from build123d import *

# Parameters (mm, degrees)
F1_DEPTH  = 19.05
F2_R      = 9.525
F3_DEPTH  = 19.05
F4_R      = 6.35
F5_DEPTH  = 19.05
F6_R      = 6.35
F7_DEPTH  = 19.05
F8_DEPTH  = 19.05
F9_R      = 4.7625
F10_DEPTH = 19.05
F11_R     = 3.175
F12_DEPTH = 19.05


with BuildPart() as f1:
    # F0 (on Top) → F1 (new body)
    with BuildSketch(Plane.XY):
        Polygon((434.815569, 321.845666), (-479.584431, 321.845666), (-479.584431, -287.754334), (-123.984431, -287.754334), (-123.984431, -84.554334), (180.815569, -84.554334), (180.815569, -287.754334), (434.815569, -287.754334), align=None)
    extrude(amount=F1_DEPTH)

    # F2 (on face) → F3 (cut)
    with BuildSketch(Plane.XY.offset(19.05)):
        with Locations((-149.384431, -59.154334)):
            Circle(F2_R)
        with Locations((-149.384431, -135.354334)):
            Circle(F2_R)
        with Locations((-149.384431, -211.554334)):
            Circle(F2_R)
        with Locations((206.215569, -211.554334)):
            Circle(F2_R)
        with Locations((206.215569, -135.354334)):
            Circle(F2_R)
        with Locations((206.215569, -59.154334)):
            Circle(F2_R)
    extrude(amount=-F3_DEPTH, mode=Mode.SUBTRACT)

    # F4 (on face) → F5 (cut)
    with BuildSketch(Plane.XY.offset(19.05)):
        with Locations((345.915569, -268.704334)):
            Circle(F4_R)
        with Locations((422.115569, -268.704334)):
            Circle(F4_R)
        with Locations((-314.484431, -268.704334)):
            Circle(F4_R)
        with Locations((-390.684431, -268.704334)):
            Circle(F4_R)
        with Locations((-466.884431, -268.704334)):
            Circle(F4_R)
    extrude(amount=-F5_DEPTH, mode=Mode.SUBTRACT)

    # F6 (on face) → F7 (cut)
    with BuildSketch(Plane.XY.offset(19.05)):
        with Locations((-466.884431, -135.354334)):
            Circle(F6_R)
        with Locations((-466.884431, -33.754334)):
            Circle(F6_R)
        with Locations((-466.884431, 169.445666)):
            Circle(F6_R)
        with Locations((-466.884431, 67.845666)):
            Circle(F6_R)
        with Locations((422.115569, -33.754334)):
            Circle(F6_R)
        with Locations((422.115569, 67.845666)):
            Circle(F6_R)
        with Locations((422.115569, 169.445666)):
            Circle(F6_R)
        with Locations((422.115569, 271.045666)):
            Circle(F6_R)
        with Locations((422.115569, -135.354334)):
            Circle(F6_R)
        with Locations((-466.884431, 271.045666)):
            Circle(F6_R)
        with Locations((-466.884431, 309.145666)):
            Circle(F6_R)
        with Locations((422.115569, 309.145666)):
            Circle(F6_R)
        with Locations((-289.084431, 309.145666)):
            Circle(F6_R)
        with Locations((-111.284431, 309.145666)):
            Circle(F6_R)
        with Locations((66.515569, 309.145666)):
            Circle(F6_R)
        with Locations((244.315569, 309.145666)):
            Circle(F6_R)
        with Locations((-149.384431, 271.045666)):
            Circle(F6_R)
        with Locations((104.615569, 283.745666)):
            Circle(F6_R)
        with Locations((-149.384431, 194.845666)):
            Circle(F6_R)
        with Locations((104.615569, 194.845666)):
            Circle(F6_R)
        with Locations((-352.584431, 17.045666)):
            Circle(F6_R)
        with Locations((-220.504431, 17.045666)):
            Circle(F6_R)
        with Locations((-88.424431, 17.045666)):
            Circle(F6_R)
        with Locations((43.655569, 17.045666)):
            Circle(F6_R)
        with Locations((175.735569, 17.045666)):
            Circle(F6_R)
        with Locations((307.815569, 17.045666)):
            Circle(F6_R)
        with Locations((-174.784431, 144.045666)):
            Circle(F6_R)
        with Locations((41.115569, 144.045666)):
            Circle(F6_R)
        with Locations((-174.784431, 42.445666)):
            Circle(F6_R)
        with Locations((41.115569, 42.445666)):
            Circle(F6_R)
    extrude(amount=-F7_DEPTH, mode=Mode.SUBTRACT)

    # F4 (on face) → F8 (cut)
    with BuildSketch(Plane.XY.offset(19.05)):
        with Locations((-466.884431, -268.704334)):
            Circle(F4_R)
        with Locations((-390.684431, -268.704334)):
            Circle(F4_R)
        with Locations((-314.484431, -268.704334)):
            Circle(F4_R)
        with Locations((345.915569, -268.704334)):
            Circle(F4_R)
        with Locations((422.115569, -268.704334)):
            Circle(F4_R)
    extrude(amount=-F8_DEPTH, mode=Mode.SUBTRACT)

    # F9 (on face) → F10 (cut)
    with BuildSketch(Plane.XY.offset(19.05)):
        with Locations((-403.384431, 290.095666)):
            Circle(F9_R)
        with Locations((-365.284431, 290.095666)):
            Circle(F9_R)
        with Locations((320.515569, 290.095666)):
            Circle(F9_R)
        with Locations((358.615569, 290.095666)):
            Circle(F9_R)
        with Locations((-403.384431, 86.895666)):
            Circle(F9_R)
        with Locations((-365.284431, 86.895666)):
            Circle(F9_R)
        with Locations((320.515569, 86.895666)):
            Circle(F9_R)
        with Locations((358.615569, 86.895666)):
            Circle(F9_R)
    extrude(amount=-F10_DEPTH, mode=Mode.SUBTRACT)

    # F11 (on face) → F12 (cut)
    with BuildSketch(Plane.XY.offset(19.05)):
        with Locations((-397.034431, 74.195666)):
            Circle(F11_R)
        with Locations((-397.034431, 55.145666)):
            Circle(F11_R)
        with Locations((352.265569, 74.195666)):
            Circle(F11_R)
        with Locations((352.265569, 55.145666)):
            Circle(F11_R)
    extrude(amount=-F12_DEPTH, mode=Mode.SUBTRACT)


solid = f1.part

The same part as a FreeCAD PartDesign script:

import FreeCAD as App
import Part
import Sketcher

V = App.Vector
Q = App.Units.Quantity

doc = App.newDocument("Part")
params = doc.addObject("Spreadsheet::Sheet", "Params")
for row, (alias, value) in enumerate([
    ("sketch1_width", "36 in"),
    ("sketch1_width2", "14 in"),
    ("sketch1_width3", "12 in"),
    ("sketch1_height", "24 in"),
    ("sketch1_height2", "8 in"),
    ("pad1_length", "0.75 in"),
    ("sketch2_diameter", "0.75 in"),
    ("pocket1_length", "0.75 in"),
    ("sketch3_diameter", "0.5 in"),
    ("pocket2_length", "0.75 in"),
    ("sketch4_diameter", "0.5 in"),
    ("pocket3_length", "0.75 in"),
    ("sketch5_diameter", "0.5 in"),
    ("pocket4_length", "0.75 in"),
    ("sketch6_diameter", "0.375 in"),
    ("pocket5_length", "0.75 in"),
    ("sketch7_diameter", "0.25 in"),
    ("pocket6_length", "0.75 in"),
], start=1):
    params.set(f"A{row}", alias)
    params.set(f"B{row}", "=" + value)
    params.setAlias(f"B{row}", alias)

body = doc.addObject("PartDesign::Body", "Body")

sketch1 = body.newObject("Sketcher::SketchObject", "Sketch")
sketch1.AttachmentSupport = (doc.getObject("XY_Plane"), [""])
sketch1.MapMode = "FlatFace"
sketch1.addGeometry(Part.LineSegment(V(435, 322, 0), V(-480, 322, 0)), False)
sketch1.addGeometry(Part.LineSegment(V(-480, 322, 0), V(-480, -288, 0)), False)
sketch1.addGeometry(Part.LineSegment(V(-480, -288, 0), V(-124, -288, 0)), False)
sketch1.addGeometry(Part.LineSegment(V(-124, -288, 0), V(-124, -85, 0)), False)
sketch1.addGeometry(Part.LineSegment(V(-124, -85, 0), V(181, -85, 0)), False)
sketch1.addGeometry(Part.LineSegment(V(181, -85, 0), V(181, -288, 0)), False)
sketch1.addGeometry(Part.LineSegment(V(181, -288, 0), V(435, -288, 0)), False)
sketch1.addGeometry(Part.LineSegment(V(435, -288, 0), V(435, 322, 0)), False)
sketch1.addConstraint(Sketcher.Constraint("Coincident", 0, 2, 1, 1))
sketch1.addConstraint(Sketcher.Constraint("Coincident", 1, 2, 2, 1))
sketch1.addConstraint(Sketcher.Constraint("Coincident", 2, 2, 3, 1))
sketch1.addConstraint(Sketcher.Constraint("Coincident", 3, 2, 4, 1))
sketch1.addConstraint(Sketcher.Constraint("Coincident", 4, 2, 5, 1))
sketch1.addConstraint(Sketcher.Constraint("Coincident", 5, 2, 6, 1))
sketch1.addConstraint(Sketcher.Constraint("Coincident", 6, 2, 7, 1))
sketch1.addConstraint(Sketcher.Constraint("Coincident", 7, 2, 0, 1))
sketch1.addConstraint(Sketcher.Constraint("Horizontal", 0))
sketch1.addConstraint(Sketcher.Constraint("Vertical", 1))
sketch1.addConstraint(Sketcher.Constraint("Horizontal", 2))
sketch1.addConstraint(Sketcher.Constraint("Vertical", 3))
sketch1.addConstraint(Sketcher.Constraint("Horizontal", 4))
sketch1.addConstraint(Sketcher.Constraint("Vertical", 5))
sketch1.addConstraint(Sketcher.Constraint("Horizontal", 6))
sketch1.addConstraint(Sketcher.Constraint("Vertical", 7))
sketch1.addConstraint(Sketcher.Constraint("Horizontal", 2, 2, 5, 2))
sketch1.addConstraint(Sketcher.Constraint("DistanceX", 0, 2, 0, 1, Q("36 in")))
sketch1.addConstraint(Sketcher.Constraint("DistanceX", 2, 1, 2, 2, Q("14 in")))
sketch1.addConstraint(Sketcher.Constraint("DistanceX", 4, 1, 4, 2, Q("12 in")))
sketch1.addConstraint(Sketcher.Constraint("DistanceY", 1, 2, 1, 1, Q("24 in")))
sketch1.addConstraint(Sketcher.Constraint("DistanceY", 3, 1, 3, 2, Q("8 in")))
sketch1.addConstraint(Sketcher.Constraint("DistanceX", 0, 2, -1, 1, 479.584431))
sketch1.addConstraint(Sketcher.Constraint("DistanceY", -1, 1, 0, 2, 321.845666))
sketch1.setExpression("Constraints[17]", "Params.sketch1_width")
sketch1.setExpression("Constraints[18]", "Params.sketch1_width2")
sketch1.setExpression("Constraints[19]", "Params.sketch1_width3")
sketch1.setExpression("Constraints[20]", "Params.sketch1_height")
sketch1.setExpression("Constraints[21]", "Params.sketch1_height2")
pad1 = body.newObject("PartDesign::Pad", "Pad")
pad1.Profile = sketch1
pad1.setExpression("Length", "Params.pad1_length")

sketch2 = body.newObject("Sketcher::SketchObject", "Sketch001")
sketch2.AttachmentSupport = (doc.getObject("XY_Plane"), [""])
sketch2.MapMode = "FlatFace"
sketch2.AttachmentOffset = App.Placement(V(0, 0, 0.75 * 25.4), App.Rotation())
sketch2.addGeometry(Part.Circle(V(-149, -59, 0), V(0, 0, 1), 10), False)
sketch2.addGeometry(Part.Circle(V(-149, -135, 0), V(0, 0, 1), 10), False)
sketch2.addGeometry(Part.Circle(V(-149, -212, 0), V(0, 0, 1), 10), False)
sketch2.addGeometry(Part.Circle(V(206, -212, 0), V(0, 0, 1), 10), False)
sketch2.addGeometry(Part.Circle(V(206, -135, 0), V(0, 0, 1), 10), False)
sketch2.addGeometry(Part.Circle(V(206, -59, 0), V(0, 0, 1), 10), False)
sketch2.addConstraint(Sketcher.Constraint("Equal", 0, 1))
sketch2.addConstraint(Sketcher.Constraint("Equal", 1, 2))
sketch2.addConstraint(Sketcher.Constraint("Equal", 2, 3))
sketch2.addConstraint(Sketcher.Constraint("Equal", 3, 4))
sketch2.addConstraint(Sketcher.Constraint("Equal", 4, 5))
sketch2.addConstraint(Sketcher.Constraint("Horizontal", 2, 3, 3, 3))
sketch2.addConstraint(Sketcher.Constraint("Horizontal", 1, 3, 4, 3))
sketch2.addConstraint(Sketcher.Constraint("Horizontal", 0, 3, 5, 3))
sketch2.addConstraint(Sketcher.Constraint("Vertical", 0, 3, 1, 3))
sketch2.addConstraint(Sketcher.Constraint("Vertical", 1, 3, 2, 3))
sketch2.addConstraint(Sketcher.Constraint("Vertical", 3, 3, 4, 3))
sketch2.addConstraint(Sketcher.Constraint("Vertical", 4, 3, 5, 3))
sketch2.addConstraint(Sketcher.Constraint("Diameter", 0, Q("0.75 in")))
sketch2.addConstraint(Sketcher.Constraint("DistanceY", 1, 3, 0, 3, Q("3 in")))
sketch2.addConstraint(Sketcher.Constraint("DistanceY", 2, 3, 1, 3, Q("3 in")))
sketch2.addConstraint(Sketcher.Constraint("DistanceX", 2, 3, 3, 3, Q("14 in")))
sketch2.addConstraint(Sketcher.Constraint("DistanceX", 0, 3, -1, 1, 149.384431))
sketch2.addConstraint(Sketcher.Constraint("DistanceY", 0, 3, -1, 1, 59.154334))
sketch2.setExpression("Constraints[12]", "Params.sketch2_diameter")
pocket1 = body.newObject("PartDesign::Pocket", "Pocket")
pocket1.Profile = sketch2
pocket1.setExpression("Length", "Params.pocket1_length")

sketch3 = body.newObject("Sketcher::SketchObject", "Sketch002")
sketch3.AttachmentSupport = (doc.getObject("XY_Plane"), [""])
sketch3.MapMode = "FlatFace"
sketch3.AttachmentOffset = App.Placement(V(0, 0, 0.75 * 25.4), App.Rotation())
sketch3.addGeometry(Part.Circle(V(346, -269, 0), V(0, 0, 1), 6), False)
sketch3.addGeometry(Part.Circle(V(422, -269, 0), V(0, 0, 1), 6), False)
sketch3.addGeometry(Part.Circle(V(-314, -269, 0), V(0, 0, 1), 6), False)
sketch3.addGeometry(Part.Circle(V(-391, -269, 0), V(0, 0, 1), 6), False)
sketch3.addGeometry(Part.Circle(V(-467, -269, 0), V(0, 0, 1), 6), False)
sketch3.addConstraint(Sketcher.Constraint("Equal", 0, 1))
sketch3.addConstraint(Sketcher.Constraint("Equal", 1, 2))
sketch3.addConstraint(Sketcher.Constraint("Equal", 2, 3))
sketch3.addConstraint(Sketcher.Constraint("Equal", 3, 4))
sketch3.addConstraint(Sketcher.Constraint("Horizontal", 0, 3, 1, 3))
sketch3.addConstraint(Sketcher.Constraint("Horizontal", 1, 3, 2, 3))
sketch3.addConstraint(Sketcher.Constraint("Horizontal", 2, 3, 3, 3))
sketch3.addConstraint(Sketcher.Constraint("Horizontal", 3, 3, 4, 3))
sketch3.addConstraint(Sketcher.Constraint("Diameter", 0, Q("0.5 in")))
sketch3.addConstraint(Sketcher.Constraint("DistanceX", 0, 3, 1, 3, Q("3 in")))
sketch3.addConstraint(Sketcher.Constraint("DistanceX", 2, 3, 0, 3, Q("26 in")))
sketch3.addConstraint(Sketcher.Constraint("DistanceX", 3, 3, 2, 3, Q("3 in")))
sketch3.addConstraint(Sketcher.Constraint("DistanceX", 4, 3, 3, 3, Q("3 in")))
sketch3.addConstraint(Sketcher.Constraint("DistanceX", -1, 1, 0, 3, 345.915569))
sketch3.addConstraint(Sketcher.Constraint("DistanceY", 0, 3, -1, 1, 268.704334))
sketch3.setExpression("Constraints[8]", "Params.sketch3_diameter")
pocket2 = body.newObject("PartDesign::Pocket", "Pocket001")
pocket2.Profile = sketch3
pocket2.setExpression("Length", "Params.pocket2_length")

sketch4 = body.newObject("Sketcher::SketchObject", "Sketch003")
sketch4.AttachmentSupport = (doc.getObject("XY_Plane"), [""])
sketch4.MapMode = "FlatFace"
sketch4.AttachmentOffset = App.Placement(V(0, 0, 0.75 * 25.4), App.Rotation())
sketch4.addGeometry(Part.Circle(V(-467, -135, 0), V(0, 0, 1), 6), False)
sketch4.addGeometry(Part.Circle(V(-467, -34, 0), V(0, 0, 1), 6), False)
sketch4.addGeometry(Part.Circle(V(-467, 169, 0), V(0, 0, 1), 6), False)
sketch4.addGeometry(Part.Circle(V(-467, 68, 0), V(0, 0, 1), 6), False)
sketch4.addGeometry(Part.Circle(V(422, -34, 0), V(0, 0, 1), 6), False)
sketch4.addGeometry(Part.Circle(V(422, 68, 0), V(0, 0, 1), 6), False)
sketch4.addGeometry(Part.Circle(V(422, 169, 0), V(0, 0, 1), 6), False)
sketch4.addGeometry(Part.Circle(V(422, 271, 0), V(0, 0, 1), 6), False)
sketch4.addGeometry(Part.Circle(V(422, -135, 0), V(0, 0, 1), 6), False)
sketch4.addGeometry(Part.Circle(V(-467, 271, 0), V(0, 0, 1), 6), False)
sketch4.addGeometry(Part.Circle(V(-467, 309, 0), V(0, 0, 1), 6), False)
sketch4.addGeometry(Part.Circle(V(422, 309, 0), V(0, 0, 1), 6), False)
sketch4.addGeometry(Part.Circle(V(-289, 309, 0), V(0, 0, 1), 6), False)
sketch4.addGeometry(Part.Circle(V(-111, 309, 0), V(0, 0, 1), 6), False)
sketch4.addGeometry(Part.Circle(V(67, 309, 0), V(0, 0, 1), 6), False)
sketch4.addGeometry(Part.Circle(V(244, 309, 0), V(0, 0, 1), 6), False)
sketch4.addGeometry(Part.Circle(V(-149, 271, 0), V(0, 0, 1), 6), False)
sketch4.addGeometry(Part.Circle(V(105, 284, 0), V(0, 0, 1), 6), False)
sketch4.addGeometry(Part.Circle(V(-149, 195, 0), V(0, 0, 1), 6), False)
sketch4.addGeometry(Part.Circle(V(105, 195, 0), V(0, 0, 1), 6), False)
sketch4.addGeometry(Part.Circle(V(-353, 17, 0), V(0, 0, 1), 6), False)
sketch4.addGeometry(Part.Circle(V(-221, 17, 0), V(0, 0, 1), 6), False)
sketch4.addGeometry(Part.Circle(V(-88, 17, 0), V(0, 0, 1), 6), False)
sketch4.addGeometry(Part.Circle(V(44, 17, 0), V(0, 0, 1), 6), False)
sketch4.addGeometry(Part.Circle(V(176, 17, 0), V(0, 0, 1), 6), False)
sketch4.addGeometry(Part.Circle(V(308, 17, 0), V(0, 0, 1), 6), False)
sketch4.addGeometry(Part.Circle(V(-175, 144, 0), V(0, 0, 1), 6), False)
sketch4.addGeometry(Part.Circle(V(41, 144, 0), V(0, 0, 1), 6), False)
sketch4.addGeometry(Part.Circle(V(-175, 42, 0), V(0, 0, 1), 6), False)
sketch4.addGeometry(Part.Circle(V(41, 42, 0), V(0, 0, 1), 6), False)
sketch4.addConstraint(Sketcher.Constraint("Equal", 0, 1))
sketch4.addConstraint(Sketcher.Constraint("Equal", 1, 2))
sketch4.addConstraint(Sketcher.Constraint("Equal", 2, 3))
sketch4.addConstraint(Sketcher.Constraint("Equal", 3, 4))
sketch4.addConstraint(Sketcher.Constraint("Equal", 4, 5))
sketch4.addConstraint(Sketcher.Constraint("Equal", 5, 6))
sketch4.addConstraint(Sketcher.Constraint("Equal", 6, 7))
sketch4.addConstraint(Sketcher.Constraint("Equal", 7, 8))
sketch4.addConstraint(Sketcher.Constraint("Equal", 8, 9))
sketch4.addConstraint(Sketcher.Constraint("Equal", 9, 10))
sketch4.addConstraint(Sketcher.Constraint("Equal", 10, 11))
sketch4.addConstraint(Sketcher.Constraint("Equal", 11, 12))
sketch4.addConstraint(Sketcher.Constraint("Equal", 12, 13))
sketch4.addConstraint(Sketcher.Constraint("Equal", 13, 14))
sketch4.addConstraint(Sketcher.Constraint("Equal", 14, 15))
sketch4.addConstraint(Sketcher.Constraint("Equal", 15, 16))
sketch4.addConstraint(Sketcher.Constraint("Equal", 16, 17))
sketch4.addConstraint(Sketcher.Constraint("Equal", 17, 18))
sketch4.addConstraint(Sketcher.Constraint("Equal", 18, 19))
sketch4.addConstraint(Sketcher.Constraint("Equal", 19, 20))
sketch4.addConstraint(Sketcher.Constraint("Equal", 20, 21))
sketch4.addConstraint(Sketcher.Constraint("Equal", 21, 22))
sketch4.addConstraint(Sketcher.Constraint("Equal", 22, 23))
sketch4.addConstraint(Sketcher.Constraint("Equal", 23, 24))
sketch4.addConstraint(Sketcher.Constraint("Equal", 24, 25))
sketch4.addConstraint(Sketcher.Constraint("Equal", 25, 26))
sketch4.addConstraint(Sketcher.Constraint("Equal", 26, 27))
sketch4.addConstraint(Sketcher.Constraint("Equal", 27, 28))
sketch4.addConstraint(Sketcher.Constraint("Equal", 28, 29))
sketch4.addConstraint(Sketcher.Constraint("Horizontal", 1, 3, 4, 3))
sketch4.addConstraint(Sketcher.Constraint("Horizontal", 3, 3, 5, 3))
sketch4.addConstraint(Sketcher.Constraint("Horizontal", 2, 3, 6, 3))
sketch4.addConstraint(Sketcher.Constraint("Horizontal", 0, 3, 8, 3))
sketch4.addConstraint(Sketcher.Constraint("Horizontal", 7, 3, 9, 3))
sketch4.addConstraint(Sketcher.Constraint("Horizontal", 10, 3, 11, 3))
sketch4.addConstraint(Sketcher.Constraint("Horizontal", 11, 3, 12, 3))
sketch4.addConstraint(Sketcher.Constraint("Horizontal", 12, 3, 13, 3))
sketch4.addConstraint(Sketcher.Constraint("Horizontal", 13, 3, 14, 3))
sketch4.addConstraint(Sketcher.Constraint("Horizontal", 14, 3, 15, 3))
sketch4.addConstraint(Sketcher.Constraint("Horizontal", 9, 3, 16, 3))
sketch4.addConstraint(Sketcher.Constraint("Horizontal", 18, 3, 19, 3))
sketch4.addConstraint(Sketcher.Constraint("Horizontal", 20, 3, 21, 3))
sketch4.addConstraint(Sketcher.Constraint("Horizontal", 21, 3, 22, 3))
sketch4.addConstraint(Sketcher.Constraint("Horizontal", 22, 3, 23, 3))
sketch4.addConstraint(Sketcher.Constraint("Horizontal", 23, 3, 24, 3))
sketch4.addConstraint(Sketcher.Constraint("Horizontal", 24, 3, 25, 3))
sketch4.addConstraint(Sketcher.Constraint("Horizontal", 26, 3, 27, 3))
sketch4.addConstraint(Sketcher.Constraint("Horizontal", 28, 3, 29, 3))
sketch4.addConstraint(Sketcher.Constraint("Vertical", 0, 3, 1, 3))
sketch4.addConstraint(Sketcher.Constraint("Vertical", 1, 3, 2, 3))
sketch4.addConstraint(Sketcher.Constraint("Vertical", 2, 3, 3, 3))
sketch4.addConstraint(Sketcher.Constraint("Vertical", 4, 3, 5, 3))
sketch4.addConstraint(Sketcher.Constraint("Vertical", 5, 3, 6, 3))
sketch4.addConstraint(Sketcher.Constraint("Vertical", 6, 3, 7, 3))
sketch4.addConstraint(Sketcher.Constraint("Vertical", 7, 3, 8, 3))
sketch4.addConstraint(Sketcher.Constraint("Vertical", 3, 3, 9, 3))
sketch4.addConstraint(Sketcher.Constraint("Vertical", 9, 3, 10, 3))
sketch4.addConstraint(Sketcher.Constraint("Vertical", 8, 3, 11, 3))
sketch4.addConstraint(Sketcher.Constraint("Vertical", 16, 3, 18, 3))
sketch4.addConstraint(Sketcher.Constraint("Vertical", 17, 3, 19, 3))
sketch4.addConstraint(Sketcher.Constraint("Vertical", 26, 3, 28, 3))
sketch4.addConstraint(Sketcher.Constraint("Vertical", 27, 3, 29, 3))
sketch4.addConstraint(Sketcher.Constraint("Diameter", 0, Q("0.5 in")))
sketch4.addConstraint(Sketcher.Constraint("DistanceY", 0, 3, 1, 3, Q("4 in")))
sketch4.addConstraint(Sketcher.Constraint("DistanceY", 1, 3, 2, 3, Q("8 in")))
sketch4.addConstraint(Sketcher.Constraint("DistanceY", 1, 3, 3, 3, Q("4 in")))
sketch4.addConstraint(Sketcher.Constraint("DistanceX", 1, 3, 4, 3, Q("35 in")))
sketch4.addConstraint(Sketcher.Constraint("DistanceY", 6, 3, 7, 3, Q("4 in")))
sketch4.addConstraint(Sketcher.Constraint("DistanceX", 10, 3, 12, 3, Q("7 in")))
sketch4.addConstraint(Sketcher.Constraint("DistanceX", 12, 3, 13, 3, Q("7 in")))
sketch4.addConstraint(Sketcher.Constraint("DistanceX", 13, 3, 14, 3, Q("7 in")))
sketch4.addConstraint(Sketcher.Constraint("DistanceX", 15, 3, 11, 3, Q("7 in")))
sketch4.addConstraint(Sketcher.Constraint("DistanceY", 17, 3, 14, 3, Q("1 in")))
sketch4.addConstraint(Sketcher.Constraint("DistanceX", 16, 3, 17, 3, Q("10 in")))
sketch4.addConstraint(Sketcher.Constraint("DistanceY", 18, 3, 16, 3, Q("3 in")))
sketch4.addConstraint(Sketcher.Constraint("DistanceY", 1, 3, 20, 3, Q("2 in")))
sketch4.addConstraint(Sketcher.Constraint("DistanceX", 20, 3, 18, 3, Q("8 in")))
sketch4.addConstraint(Sketcher.Constraint("DistanceX", 26, 3, 18, 3, Q("1 in")))
sketch4.addConstraint(Sketcher.Constraint("DistanceY", 26, 3, 18, 3, Q("2 in")))
sketch4.addConstraint(Sketcher.Constraint("DistanceX", 27, 3, 14, 3, Q("1 in")))
sketch4.addConstraint(Sketcher.Constraint("DistanceY", 21, 3, 28, 3, Q("1 in")))
sketch4.addConstraint(Sketcher.Constraint("DistanceY", 9, 3, 10, 3, Q("1.5 in")))
sketch4.addConstraint(Sketcher.Constraint("DistanceX", 16, 3, 13, 3, Q("1.5 in")))
sketch4.addConstraint(Sketcher.Constraint("DistanceX", 20, 3, 21, 3, Q("5.2 in")))
sketch4.addConstraint(Sketcher.Constraint("DistanceX", 21, 3, 22, 3, Q("5.2 in")))
sketch4.addConstraint(Sketcher.Constraint("DistanceX", 22, 3, 23, 3, Q("5.2 in")))
sketch4.addConstraint(Sketcher.Constraint("DistanceX", 23, 3, 24, 3, Q("5.2 in")))
sketch4.addConstraint(Sketcher.Constraint("DistanceX", 25, 3, 4, 3, Q("4.5 in")))
sketch4.addConstraint(Sketcher.Constraint("DistanceX", 0, 3, -1, 1, 466.884431))
sketch4.addConstraint(Sketcher.Constraint("DistanceY", 0, 3, -1, 1, 135.354334))
sketch4.setExpression("Constraints[62]", "Params.sketch4_diameter")
pocket3 = body.newObject("PartDesign::Pocket", "Pocket002")
pocket3.Profile = sketch4
pocket3.setExpression("Length", "Params.pocket3_length")

sketch5 = body.newObject("Sketcher::SketchObject", "Sketch004")
sketch5.AttachmentSupport = (doc.getObject("XY_Plane"), [""])
sketch5.MapMode = "FlatFace"
sketch5.AttachmentOffset = App.Placement(V(0, 0, 0.75 * 25.4), App.Rotation())
sketch5.addGeometry(Part.Circle(V(-467, -269, 0), V(0, 0, 1), 6), False)
sketch5.addGeometry(Part.Circle(V(-391, -269, 0), V(0, 0, 1), 6), False)
sketch5.addGeometry(Part.Circle(V(-314, -269, 0), V(0, 0, 1), 6), False)
sketch5.addGeometry(Part.Circle(V(346, -269, 0), V(0, 0, 1), 6), False)
sketch5.addGeometry(Part.Circle(V(422, -269, 0), V(0, 0, 1), 6), False)
sketch5.addConstraint(Sketcher.Constraint("Equal", 0, 1))
sketch5.addConstraint(Sketcher.Constraint("Equal", 1, 2))
sketch5.addConstraint(Sketcher.Constraint("Equal", 2, 3))
sketch5.addConstraint(Sketcher.Constraint("Equal", 3, 4))
sketch5.addConstraint(Sketcher.Constraint("Horizontal", 0, 3, 1, 3))
sketch5.addConstraint(Sketcher.Constraint("Horizontal", 1, 3, 2, 3))
sketch5.addConstraint(Sketcher.Constraint("Horizontal", 2, 3, 3, 3))
sketch5.addConstraint(Sketcher.Constraint("Horizontal", 3, 3, 4, 3))
sketch5.addConstraint(Sketcher.Constraint("Diameter", 0, Q("0.5 in")))
sketch5.addConstraint(Sketcher.Constraint("DistanceX", 0, 3, 1, 3, Q("3 in")))
sketch5.addConstraint(Sketcher.Constraint("DistanceX", 1, 3, 2, 3, Q("3 in")))
sketch5.addConstraint(Sketcher.Constraint("DistanceX", 2, 3, 3, 3, Q("26 in")))
sketch5.addConstraint(Sketcher.Constraint("DistanceX", 3, 3, 4, 3, Q("3 in")))
sketch5.addConstraint(Sketcher.Constraint("DistanceX", 0, 3, -1, 1, 466.884431))
sketch5.addConstraint(Sketcher.Constraint("DistanceY", 0, 3, -1, 1, 268.704334))
sketch5.setExpression("Constraints[8]", "Params.sketch5_diameter")
pocket4 = body.newObject("PartDesign::Pocket", "Pocket003")
pocket4.Profile = sketch5
pocket4.setExpression("Length", "Params.pocket4_length")

sketch6 = body.newObject("Sketcher::SketchObject", "Sketch005")
sketch6.AttachmentSupport = (doc.getObject("XY_Plane"), [""])
sketch6.MapMode = "FlatFace"
sketch6.AttachmentOffset = App.Placement(V(0, 0, 0.75 * 25.4), App.Rotation())
sketch6.addGeometry(Part.Circle(V(-403.4, 290.1, 0), V(0, 0, 1), 4.8), False)
sketch6.addGeometry(Part.Circle(V(-365.3, 290.1, 0), V(0, 0, 1), 4.8), False)
sketch6.addGeometry(Part.Circle(V(320.5, 290.1, 0), V(0, 0, 1), 4.8), False)
sketch6.addGeometry(Part.Circle(V(358.6, 290.1, 0), V(0, 0, 1), 4.8), False)
sketch6.addGeometry(Part.Circle(V(-403.4, 86.9, 0), V(0, 0, 1), 4.8), False)
sketch6.addGeometry(Part.Circle(V(-365.3, 86.9, 0), V(0, 0, 1), 4.8), False)
sketch6.addGeometry(Part.Circle(V(320.5, 86.9, 0), V(0, 0, 1), 4.8), False)
sketch6.addGeometry(Part.Circle(V(358.6, 86.9, 0), V(0, 0, 1), 4.8), False)
sketch6.addConstraint(Sketcher.Constraint("Equal", 0, 1))
sketch6.addConstraint(Sketcher.Constraint("Equal", 1, 2))
sketch6.addConstraint(Sketcher.Constraint("Equal", 2, 3))
sketch6.addConstraint(Sketcher.Constraint("Equal", 3, 4))
sketch6.addConstraint(Sketcher.Constraint("Equal", 4, 5))
sketch6.addConstraint(Sketcher.Constraint("Equal", 5, 6))
sketch6.addConstraint(Sketcher.Constraint("Equal", 6, 7))
sketch6.addConstraint(Sketcher.Constraint("Horizontal", 0, 3, 1, 3))
sketch6.addConstraint(Sketcher.Constraint("Horizontal", 1, 3, 2, 3))
sketch6.addConstraint(Sketcher.Constraint("Horizontal", 2, 3, 3, 3))
sketch6.addConstraint(Sketcher.Constraint("Horizontal", 4, 3, 5, 3))
sketch6.addConstraint(Sketcher.Constraint("Horizontal", 5, 3, 6, 3))
sketch6.addConstraint(Sketcher.Constraint("Horizontal", 6, 3, 7, 3))
sketch6.addConstraint(Sketcher.Constraint("Vertical", 0, 3, 4, 3))
sketch6.addConstraint(Sketcher.Constraint("Vertical", 1, 3, 5, 3))
sketch6.addConstraint(Sketcher.Constraint("Vertical", 2, 3, 6, 3))
sketch6.addConstraint(Sketcher.Constraint("Vertical", 3, 3, 7, 3))
sketch6.addConstraint(Sketcher.Constraint("Diameter", 0, Q("0.375 in")))
sketch6.addConstraint(Sketcher.Constraint("DistanceX", 1, 3, 2, 3, Q("27 in")))
sketch6.addConstraint(Sketcher.Constraint("DistanceX", 0, 3, 3, 3, Q("30 in")))
sketch6.addConstraint(Sketcher.Constraint("DistanceY", 4, 3, 0, 3, Q("8 in")))
sketch6.addConstraint(Sketcher.Constraint("DistanceX", 0, 3, 1, 3, Q("1.5 in")))
sketch6.addConstraint(Sketcher.Constraint("DistanceX", 0, 3, -1, 1, 403.384431))
sketch6.addConstraint(Sketcher.Constraint("DistanceY", -1, 1, 0, 3, 290.095666))
sketch6.setExpression("Constraints[17]", "Params.sketch6_diameter")
pocket5 = body.newObject("PartDesign::Pocket", "Pocket004")
pocket5.Profile = sketch6
pocket5.setExpression("Length", "Params.pocket5_length")

sketch7 = body.newObject("Sketcher::SketchObject", "Sketch006")
sketch7.AttachmentSupport = (doc.getObject("XY_Plane"), [""])
sketch7.MapMode = "FlatFace"
sketch7.AttachmentOffset = App.Placement(V(0, 0, 0.75 * 25.4), App.Rotation())
sketch7.addGeometry(Part.Circle(V(-397, 74.2, 0), V(0, 0, 1), 3.2), False)
sketch7.addGeometry(Part.Circle(V(-397, 55.1, 0), V(0, 0, 1), 3.2), False)
sketch7.addGeometry(Part.Circle(V(352.3, 74.2, 0), V(0, 0, 1), 3.2), False)
sketch7.addGeometry(Part.Circle(V(352.3, 55.1, 0), V(0, 0, 1), 3.2), False)
sketch7.addConstraint(Sketcher.Constraint("Equal", 0, 1))
sketch7.addConstraint(Sketcher.Constraint("Equal", 1, 2))
sketch7.addConstraint(Sketcher.Constraint("Equal", 2, 3))
sketch7.addConstraint(Sketcher.Constraint("Horizontal", 0, 3, 2, 3))
sketch7.addConstraint(Sketcher.Constraint("Horizontal", 1, 3, 3, 3))
sketch7.addConstraint(Sketcher.Constraint("Vertical", 0, 3, 1, 3))
sketch7.addConstraint(Sketcher.Constraint("Vertical", 2, 3, 3, 3))
sketch7.addConstraint(Sketcher.Constraint("Diameter", 0, Q("0.25 in")))
sketch7.addConstraint(Sketcher.Constraint("DistanceX", 0, 3, 2, 3, Q("29.5 in")))
sketch7.addConstraint(Sketcher.Constraint("DistanceY", 1, 3, 0, 3, Q("0.75 in")))
sketch7.addConstraint(Sketcher.Constraint("DistanceX", 0, 3, -1, 1, 397.034431))
sketch7.addConstraint(Sketcher.Constraint("DistanceY", -1, 1, 0, 3, 74.195666))
sketch7.setExpression("Constraints[7]", "Params.sketch7_diameter")
pocket6 = body.newObject("PartDesign::Pocket", "Pocket005")
pocket6.Profile = sketch7
pocket6.setExpression("Length", "Params.pocket6_length")

doc.recompute()
